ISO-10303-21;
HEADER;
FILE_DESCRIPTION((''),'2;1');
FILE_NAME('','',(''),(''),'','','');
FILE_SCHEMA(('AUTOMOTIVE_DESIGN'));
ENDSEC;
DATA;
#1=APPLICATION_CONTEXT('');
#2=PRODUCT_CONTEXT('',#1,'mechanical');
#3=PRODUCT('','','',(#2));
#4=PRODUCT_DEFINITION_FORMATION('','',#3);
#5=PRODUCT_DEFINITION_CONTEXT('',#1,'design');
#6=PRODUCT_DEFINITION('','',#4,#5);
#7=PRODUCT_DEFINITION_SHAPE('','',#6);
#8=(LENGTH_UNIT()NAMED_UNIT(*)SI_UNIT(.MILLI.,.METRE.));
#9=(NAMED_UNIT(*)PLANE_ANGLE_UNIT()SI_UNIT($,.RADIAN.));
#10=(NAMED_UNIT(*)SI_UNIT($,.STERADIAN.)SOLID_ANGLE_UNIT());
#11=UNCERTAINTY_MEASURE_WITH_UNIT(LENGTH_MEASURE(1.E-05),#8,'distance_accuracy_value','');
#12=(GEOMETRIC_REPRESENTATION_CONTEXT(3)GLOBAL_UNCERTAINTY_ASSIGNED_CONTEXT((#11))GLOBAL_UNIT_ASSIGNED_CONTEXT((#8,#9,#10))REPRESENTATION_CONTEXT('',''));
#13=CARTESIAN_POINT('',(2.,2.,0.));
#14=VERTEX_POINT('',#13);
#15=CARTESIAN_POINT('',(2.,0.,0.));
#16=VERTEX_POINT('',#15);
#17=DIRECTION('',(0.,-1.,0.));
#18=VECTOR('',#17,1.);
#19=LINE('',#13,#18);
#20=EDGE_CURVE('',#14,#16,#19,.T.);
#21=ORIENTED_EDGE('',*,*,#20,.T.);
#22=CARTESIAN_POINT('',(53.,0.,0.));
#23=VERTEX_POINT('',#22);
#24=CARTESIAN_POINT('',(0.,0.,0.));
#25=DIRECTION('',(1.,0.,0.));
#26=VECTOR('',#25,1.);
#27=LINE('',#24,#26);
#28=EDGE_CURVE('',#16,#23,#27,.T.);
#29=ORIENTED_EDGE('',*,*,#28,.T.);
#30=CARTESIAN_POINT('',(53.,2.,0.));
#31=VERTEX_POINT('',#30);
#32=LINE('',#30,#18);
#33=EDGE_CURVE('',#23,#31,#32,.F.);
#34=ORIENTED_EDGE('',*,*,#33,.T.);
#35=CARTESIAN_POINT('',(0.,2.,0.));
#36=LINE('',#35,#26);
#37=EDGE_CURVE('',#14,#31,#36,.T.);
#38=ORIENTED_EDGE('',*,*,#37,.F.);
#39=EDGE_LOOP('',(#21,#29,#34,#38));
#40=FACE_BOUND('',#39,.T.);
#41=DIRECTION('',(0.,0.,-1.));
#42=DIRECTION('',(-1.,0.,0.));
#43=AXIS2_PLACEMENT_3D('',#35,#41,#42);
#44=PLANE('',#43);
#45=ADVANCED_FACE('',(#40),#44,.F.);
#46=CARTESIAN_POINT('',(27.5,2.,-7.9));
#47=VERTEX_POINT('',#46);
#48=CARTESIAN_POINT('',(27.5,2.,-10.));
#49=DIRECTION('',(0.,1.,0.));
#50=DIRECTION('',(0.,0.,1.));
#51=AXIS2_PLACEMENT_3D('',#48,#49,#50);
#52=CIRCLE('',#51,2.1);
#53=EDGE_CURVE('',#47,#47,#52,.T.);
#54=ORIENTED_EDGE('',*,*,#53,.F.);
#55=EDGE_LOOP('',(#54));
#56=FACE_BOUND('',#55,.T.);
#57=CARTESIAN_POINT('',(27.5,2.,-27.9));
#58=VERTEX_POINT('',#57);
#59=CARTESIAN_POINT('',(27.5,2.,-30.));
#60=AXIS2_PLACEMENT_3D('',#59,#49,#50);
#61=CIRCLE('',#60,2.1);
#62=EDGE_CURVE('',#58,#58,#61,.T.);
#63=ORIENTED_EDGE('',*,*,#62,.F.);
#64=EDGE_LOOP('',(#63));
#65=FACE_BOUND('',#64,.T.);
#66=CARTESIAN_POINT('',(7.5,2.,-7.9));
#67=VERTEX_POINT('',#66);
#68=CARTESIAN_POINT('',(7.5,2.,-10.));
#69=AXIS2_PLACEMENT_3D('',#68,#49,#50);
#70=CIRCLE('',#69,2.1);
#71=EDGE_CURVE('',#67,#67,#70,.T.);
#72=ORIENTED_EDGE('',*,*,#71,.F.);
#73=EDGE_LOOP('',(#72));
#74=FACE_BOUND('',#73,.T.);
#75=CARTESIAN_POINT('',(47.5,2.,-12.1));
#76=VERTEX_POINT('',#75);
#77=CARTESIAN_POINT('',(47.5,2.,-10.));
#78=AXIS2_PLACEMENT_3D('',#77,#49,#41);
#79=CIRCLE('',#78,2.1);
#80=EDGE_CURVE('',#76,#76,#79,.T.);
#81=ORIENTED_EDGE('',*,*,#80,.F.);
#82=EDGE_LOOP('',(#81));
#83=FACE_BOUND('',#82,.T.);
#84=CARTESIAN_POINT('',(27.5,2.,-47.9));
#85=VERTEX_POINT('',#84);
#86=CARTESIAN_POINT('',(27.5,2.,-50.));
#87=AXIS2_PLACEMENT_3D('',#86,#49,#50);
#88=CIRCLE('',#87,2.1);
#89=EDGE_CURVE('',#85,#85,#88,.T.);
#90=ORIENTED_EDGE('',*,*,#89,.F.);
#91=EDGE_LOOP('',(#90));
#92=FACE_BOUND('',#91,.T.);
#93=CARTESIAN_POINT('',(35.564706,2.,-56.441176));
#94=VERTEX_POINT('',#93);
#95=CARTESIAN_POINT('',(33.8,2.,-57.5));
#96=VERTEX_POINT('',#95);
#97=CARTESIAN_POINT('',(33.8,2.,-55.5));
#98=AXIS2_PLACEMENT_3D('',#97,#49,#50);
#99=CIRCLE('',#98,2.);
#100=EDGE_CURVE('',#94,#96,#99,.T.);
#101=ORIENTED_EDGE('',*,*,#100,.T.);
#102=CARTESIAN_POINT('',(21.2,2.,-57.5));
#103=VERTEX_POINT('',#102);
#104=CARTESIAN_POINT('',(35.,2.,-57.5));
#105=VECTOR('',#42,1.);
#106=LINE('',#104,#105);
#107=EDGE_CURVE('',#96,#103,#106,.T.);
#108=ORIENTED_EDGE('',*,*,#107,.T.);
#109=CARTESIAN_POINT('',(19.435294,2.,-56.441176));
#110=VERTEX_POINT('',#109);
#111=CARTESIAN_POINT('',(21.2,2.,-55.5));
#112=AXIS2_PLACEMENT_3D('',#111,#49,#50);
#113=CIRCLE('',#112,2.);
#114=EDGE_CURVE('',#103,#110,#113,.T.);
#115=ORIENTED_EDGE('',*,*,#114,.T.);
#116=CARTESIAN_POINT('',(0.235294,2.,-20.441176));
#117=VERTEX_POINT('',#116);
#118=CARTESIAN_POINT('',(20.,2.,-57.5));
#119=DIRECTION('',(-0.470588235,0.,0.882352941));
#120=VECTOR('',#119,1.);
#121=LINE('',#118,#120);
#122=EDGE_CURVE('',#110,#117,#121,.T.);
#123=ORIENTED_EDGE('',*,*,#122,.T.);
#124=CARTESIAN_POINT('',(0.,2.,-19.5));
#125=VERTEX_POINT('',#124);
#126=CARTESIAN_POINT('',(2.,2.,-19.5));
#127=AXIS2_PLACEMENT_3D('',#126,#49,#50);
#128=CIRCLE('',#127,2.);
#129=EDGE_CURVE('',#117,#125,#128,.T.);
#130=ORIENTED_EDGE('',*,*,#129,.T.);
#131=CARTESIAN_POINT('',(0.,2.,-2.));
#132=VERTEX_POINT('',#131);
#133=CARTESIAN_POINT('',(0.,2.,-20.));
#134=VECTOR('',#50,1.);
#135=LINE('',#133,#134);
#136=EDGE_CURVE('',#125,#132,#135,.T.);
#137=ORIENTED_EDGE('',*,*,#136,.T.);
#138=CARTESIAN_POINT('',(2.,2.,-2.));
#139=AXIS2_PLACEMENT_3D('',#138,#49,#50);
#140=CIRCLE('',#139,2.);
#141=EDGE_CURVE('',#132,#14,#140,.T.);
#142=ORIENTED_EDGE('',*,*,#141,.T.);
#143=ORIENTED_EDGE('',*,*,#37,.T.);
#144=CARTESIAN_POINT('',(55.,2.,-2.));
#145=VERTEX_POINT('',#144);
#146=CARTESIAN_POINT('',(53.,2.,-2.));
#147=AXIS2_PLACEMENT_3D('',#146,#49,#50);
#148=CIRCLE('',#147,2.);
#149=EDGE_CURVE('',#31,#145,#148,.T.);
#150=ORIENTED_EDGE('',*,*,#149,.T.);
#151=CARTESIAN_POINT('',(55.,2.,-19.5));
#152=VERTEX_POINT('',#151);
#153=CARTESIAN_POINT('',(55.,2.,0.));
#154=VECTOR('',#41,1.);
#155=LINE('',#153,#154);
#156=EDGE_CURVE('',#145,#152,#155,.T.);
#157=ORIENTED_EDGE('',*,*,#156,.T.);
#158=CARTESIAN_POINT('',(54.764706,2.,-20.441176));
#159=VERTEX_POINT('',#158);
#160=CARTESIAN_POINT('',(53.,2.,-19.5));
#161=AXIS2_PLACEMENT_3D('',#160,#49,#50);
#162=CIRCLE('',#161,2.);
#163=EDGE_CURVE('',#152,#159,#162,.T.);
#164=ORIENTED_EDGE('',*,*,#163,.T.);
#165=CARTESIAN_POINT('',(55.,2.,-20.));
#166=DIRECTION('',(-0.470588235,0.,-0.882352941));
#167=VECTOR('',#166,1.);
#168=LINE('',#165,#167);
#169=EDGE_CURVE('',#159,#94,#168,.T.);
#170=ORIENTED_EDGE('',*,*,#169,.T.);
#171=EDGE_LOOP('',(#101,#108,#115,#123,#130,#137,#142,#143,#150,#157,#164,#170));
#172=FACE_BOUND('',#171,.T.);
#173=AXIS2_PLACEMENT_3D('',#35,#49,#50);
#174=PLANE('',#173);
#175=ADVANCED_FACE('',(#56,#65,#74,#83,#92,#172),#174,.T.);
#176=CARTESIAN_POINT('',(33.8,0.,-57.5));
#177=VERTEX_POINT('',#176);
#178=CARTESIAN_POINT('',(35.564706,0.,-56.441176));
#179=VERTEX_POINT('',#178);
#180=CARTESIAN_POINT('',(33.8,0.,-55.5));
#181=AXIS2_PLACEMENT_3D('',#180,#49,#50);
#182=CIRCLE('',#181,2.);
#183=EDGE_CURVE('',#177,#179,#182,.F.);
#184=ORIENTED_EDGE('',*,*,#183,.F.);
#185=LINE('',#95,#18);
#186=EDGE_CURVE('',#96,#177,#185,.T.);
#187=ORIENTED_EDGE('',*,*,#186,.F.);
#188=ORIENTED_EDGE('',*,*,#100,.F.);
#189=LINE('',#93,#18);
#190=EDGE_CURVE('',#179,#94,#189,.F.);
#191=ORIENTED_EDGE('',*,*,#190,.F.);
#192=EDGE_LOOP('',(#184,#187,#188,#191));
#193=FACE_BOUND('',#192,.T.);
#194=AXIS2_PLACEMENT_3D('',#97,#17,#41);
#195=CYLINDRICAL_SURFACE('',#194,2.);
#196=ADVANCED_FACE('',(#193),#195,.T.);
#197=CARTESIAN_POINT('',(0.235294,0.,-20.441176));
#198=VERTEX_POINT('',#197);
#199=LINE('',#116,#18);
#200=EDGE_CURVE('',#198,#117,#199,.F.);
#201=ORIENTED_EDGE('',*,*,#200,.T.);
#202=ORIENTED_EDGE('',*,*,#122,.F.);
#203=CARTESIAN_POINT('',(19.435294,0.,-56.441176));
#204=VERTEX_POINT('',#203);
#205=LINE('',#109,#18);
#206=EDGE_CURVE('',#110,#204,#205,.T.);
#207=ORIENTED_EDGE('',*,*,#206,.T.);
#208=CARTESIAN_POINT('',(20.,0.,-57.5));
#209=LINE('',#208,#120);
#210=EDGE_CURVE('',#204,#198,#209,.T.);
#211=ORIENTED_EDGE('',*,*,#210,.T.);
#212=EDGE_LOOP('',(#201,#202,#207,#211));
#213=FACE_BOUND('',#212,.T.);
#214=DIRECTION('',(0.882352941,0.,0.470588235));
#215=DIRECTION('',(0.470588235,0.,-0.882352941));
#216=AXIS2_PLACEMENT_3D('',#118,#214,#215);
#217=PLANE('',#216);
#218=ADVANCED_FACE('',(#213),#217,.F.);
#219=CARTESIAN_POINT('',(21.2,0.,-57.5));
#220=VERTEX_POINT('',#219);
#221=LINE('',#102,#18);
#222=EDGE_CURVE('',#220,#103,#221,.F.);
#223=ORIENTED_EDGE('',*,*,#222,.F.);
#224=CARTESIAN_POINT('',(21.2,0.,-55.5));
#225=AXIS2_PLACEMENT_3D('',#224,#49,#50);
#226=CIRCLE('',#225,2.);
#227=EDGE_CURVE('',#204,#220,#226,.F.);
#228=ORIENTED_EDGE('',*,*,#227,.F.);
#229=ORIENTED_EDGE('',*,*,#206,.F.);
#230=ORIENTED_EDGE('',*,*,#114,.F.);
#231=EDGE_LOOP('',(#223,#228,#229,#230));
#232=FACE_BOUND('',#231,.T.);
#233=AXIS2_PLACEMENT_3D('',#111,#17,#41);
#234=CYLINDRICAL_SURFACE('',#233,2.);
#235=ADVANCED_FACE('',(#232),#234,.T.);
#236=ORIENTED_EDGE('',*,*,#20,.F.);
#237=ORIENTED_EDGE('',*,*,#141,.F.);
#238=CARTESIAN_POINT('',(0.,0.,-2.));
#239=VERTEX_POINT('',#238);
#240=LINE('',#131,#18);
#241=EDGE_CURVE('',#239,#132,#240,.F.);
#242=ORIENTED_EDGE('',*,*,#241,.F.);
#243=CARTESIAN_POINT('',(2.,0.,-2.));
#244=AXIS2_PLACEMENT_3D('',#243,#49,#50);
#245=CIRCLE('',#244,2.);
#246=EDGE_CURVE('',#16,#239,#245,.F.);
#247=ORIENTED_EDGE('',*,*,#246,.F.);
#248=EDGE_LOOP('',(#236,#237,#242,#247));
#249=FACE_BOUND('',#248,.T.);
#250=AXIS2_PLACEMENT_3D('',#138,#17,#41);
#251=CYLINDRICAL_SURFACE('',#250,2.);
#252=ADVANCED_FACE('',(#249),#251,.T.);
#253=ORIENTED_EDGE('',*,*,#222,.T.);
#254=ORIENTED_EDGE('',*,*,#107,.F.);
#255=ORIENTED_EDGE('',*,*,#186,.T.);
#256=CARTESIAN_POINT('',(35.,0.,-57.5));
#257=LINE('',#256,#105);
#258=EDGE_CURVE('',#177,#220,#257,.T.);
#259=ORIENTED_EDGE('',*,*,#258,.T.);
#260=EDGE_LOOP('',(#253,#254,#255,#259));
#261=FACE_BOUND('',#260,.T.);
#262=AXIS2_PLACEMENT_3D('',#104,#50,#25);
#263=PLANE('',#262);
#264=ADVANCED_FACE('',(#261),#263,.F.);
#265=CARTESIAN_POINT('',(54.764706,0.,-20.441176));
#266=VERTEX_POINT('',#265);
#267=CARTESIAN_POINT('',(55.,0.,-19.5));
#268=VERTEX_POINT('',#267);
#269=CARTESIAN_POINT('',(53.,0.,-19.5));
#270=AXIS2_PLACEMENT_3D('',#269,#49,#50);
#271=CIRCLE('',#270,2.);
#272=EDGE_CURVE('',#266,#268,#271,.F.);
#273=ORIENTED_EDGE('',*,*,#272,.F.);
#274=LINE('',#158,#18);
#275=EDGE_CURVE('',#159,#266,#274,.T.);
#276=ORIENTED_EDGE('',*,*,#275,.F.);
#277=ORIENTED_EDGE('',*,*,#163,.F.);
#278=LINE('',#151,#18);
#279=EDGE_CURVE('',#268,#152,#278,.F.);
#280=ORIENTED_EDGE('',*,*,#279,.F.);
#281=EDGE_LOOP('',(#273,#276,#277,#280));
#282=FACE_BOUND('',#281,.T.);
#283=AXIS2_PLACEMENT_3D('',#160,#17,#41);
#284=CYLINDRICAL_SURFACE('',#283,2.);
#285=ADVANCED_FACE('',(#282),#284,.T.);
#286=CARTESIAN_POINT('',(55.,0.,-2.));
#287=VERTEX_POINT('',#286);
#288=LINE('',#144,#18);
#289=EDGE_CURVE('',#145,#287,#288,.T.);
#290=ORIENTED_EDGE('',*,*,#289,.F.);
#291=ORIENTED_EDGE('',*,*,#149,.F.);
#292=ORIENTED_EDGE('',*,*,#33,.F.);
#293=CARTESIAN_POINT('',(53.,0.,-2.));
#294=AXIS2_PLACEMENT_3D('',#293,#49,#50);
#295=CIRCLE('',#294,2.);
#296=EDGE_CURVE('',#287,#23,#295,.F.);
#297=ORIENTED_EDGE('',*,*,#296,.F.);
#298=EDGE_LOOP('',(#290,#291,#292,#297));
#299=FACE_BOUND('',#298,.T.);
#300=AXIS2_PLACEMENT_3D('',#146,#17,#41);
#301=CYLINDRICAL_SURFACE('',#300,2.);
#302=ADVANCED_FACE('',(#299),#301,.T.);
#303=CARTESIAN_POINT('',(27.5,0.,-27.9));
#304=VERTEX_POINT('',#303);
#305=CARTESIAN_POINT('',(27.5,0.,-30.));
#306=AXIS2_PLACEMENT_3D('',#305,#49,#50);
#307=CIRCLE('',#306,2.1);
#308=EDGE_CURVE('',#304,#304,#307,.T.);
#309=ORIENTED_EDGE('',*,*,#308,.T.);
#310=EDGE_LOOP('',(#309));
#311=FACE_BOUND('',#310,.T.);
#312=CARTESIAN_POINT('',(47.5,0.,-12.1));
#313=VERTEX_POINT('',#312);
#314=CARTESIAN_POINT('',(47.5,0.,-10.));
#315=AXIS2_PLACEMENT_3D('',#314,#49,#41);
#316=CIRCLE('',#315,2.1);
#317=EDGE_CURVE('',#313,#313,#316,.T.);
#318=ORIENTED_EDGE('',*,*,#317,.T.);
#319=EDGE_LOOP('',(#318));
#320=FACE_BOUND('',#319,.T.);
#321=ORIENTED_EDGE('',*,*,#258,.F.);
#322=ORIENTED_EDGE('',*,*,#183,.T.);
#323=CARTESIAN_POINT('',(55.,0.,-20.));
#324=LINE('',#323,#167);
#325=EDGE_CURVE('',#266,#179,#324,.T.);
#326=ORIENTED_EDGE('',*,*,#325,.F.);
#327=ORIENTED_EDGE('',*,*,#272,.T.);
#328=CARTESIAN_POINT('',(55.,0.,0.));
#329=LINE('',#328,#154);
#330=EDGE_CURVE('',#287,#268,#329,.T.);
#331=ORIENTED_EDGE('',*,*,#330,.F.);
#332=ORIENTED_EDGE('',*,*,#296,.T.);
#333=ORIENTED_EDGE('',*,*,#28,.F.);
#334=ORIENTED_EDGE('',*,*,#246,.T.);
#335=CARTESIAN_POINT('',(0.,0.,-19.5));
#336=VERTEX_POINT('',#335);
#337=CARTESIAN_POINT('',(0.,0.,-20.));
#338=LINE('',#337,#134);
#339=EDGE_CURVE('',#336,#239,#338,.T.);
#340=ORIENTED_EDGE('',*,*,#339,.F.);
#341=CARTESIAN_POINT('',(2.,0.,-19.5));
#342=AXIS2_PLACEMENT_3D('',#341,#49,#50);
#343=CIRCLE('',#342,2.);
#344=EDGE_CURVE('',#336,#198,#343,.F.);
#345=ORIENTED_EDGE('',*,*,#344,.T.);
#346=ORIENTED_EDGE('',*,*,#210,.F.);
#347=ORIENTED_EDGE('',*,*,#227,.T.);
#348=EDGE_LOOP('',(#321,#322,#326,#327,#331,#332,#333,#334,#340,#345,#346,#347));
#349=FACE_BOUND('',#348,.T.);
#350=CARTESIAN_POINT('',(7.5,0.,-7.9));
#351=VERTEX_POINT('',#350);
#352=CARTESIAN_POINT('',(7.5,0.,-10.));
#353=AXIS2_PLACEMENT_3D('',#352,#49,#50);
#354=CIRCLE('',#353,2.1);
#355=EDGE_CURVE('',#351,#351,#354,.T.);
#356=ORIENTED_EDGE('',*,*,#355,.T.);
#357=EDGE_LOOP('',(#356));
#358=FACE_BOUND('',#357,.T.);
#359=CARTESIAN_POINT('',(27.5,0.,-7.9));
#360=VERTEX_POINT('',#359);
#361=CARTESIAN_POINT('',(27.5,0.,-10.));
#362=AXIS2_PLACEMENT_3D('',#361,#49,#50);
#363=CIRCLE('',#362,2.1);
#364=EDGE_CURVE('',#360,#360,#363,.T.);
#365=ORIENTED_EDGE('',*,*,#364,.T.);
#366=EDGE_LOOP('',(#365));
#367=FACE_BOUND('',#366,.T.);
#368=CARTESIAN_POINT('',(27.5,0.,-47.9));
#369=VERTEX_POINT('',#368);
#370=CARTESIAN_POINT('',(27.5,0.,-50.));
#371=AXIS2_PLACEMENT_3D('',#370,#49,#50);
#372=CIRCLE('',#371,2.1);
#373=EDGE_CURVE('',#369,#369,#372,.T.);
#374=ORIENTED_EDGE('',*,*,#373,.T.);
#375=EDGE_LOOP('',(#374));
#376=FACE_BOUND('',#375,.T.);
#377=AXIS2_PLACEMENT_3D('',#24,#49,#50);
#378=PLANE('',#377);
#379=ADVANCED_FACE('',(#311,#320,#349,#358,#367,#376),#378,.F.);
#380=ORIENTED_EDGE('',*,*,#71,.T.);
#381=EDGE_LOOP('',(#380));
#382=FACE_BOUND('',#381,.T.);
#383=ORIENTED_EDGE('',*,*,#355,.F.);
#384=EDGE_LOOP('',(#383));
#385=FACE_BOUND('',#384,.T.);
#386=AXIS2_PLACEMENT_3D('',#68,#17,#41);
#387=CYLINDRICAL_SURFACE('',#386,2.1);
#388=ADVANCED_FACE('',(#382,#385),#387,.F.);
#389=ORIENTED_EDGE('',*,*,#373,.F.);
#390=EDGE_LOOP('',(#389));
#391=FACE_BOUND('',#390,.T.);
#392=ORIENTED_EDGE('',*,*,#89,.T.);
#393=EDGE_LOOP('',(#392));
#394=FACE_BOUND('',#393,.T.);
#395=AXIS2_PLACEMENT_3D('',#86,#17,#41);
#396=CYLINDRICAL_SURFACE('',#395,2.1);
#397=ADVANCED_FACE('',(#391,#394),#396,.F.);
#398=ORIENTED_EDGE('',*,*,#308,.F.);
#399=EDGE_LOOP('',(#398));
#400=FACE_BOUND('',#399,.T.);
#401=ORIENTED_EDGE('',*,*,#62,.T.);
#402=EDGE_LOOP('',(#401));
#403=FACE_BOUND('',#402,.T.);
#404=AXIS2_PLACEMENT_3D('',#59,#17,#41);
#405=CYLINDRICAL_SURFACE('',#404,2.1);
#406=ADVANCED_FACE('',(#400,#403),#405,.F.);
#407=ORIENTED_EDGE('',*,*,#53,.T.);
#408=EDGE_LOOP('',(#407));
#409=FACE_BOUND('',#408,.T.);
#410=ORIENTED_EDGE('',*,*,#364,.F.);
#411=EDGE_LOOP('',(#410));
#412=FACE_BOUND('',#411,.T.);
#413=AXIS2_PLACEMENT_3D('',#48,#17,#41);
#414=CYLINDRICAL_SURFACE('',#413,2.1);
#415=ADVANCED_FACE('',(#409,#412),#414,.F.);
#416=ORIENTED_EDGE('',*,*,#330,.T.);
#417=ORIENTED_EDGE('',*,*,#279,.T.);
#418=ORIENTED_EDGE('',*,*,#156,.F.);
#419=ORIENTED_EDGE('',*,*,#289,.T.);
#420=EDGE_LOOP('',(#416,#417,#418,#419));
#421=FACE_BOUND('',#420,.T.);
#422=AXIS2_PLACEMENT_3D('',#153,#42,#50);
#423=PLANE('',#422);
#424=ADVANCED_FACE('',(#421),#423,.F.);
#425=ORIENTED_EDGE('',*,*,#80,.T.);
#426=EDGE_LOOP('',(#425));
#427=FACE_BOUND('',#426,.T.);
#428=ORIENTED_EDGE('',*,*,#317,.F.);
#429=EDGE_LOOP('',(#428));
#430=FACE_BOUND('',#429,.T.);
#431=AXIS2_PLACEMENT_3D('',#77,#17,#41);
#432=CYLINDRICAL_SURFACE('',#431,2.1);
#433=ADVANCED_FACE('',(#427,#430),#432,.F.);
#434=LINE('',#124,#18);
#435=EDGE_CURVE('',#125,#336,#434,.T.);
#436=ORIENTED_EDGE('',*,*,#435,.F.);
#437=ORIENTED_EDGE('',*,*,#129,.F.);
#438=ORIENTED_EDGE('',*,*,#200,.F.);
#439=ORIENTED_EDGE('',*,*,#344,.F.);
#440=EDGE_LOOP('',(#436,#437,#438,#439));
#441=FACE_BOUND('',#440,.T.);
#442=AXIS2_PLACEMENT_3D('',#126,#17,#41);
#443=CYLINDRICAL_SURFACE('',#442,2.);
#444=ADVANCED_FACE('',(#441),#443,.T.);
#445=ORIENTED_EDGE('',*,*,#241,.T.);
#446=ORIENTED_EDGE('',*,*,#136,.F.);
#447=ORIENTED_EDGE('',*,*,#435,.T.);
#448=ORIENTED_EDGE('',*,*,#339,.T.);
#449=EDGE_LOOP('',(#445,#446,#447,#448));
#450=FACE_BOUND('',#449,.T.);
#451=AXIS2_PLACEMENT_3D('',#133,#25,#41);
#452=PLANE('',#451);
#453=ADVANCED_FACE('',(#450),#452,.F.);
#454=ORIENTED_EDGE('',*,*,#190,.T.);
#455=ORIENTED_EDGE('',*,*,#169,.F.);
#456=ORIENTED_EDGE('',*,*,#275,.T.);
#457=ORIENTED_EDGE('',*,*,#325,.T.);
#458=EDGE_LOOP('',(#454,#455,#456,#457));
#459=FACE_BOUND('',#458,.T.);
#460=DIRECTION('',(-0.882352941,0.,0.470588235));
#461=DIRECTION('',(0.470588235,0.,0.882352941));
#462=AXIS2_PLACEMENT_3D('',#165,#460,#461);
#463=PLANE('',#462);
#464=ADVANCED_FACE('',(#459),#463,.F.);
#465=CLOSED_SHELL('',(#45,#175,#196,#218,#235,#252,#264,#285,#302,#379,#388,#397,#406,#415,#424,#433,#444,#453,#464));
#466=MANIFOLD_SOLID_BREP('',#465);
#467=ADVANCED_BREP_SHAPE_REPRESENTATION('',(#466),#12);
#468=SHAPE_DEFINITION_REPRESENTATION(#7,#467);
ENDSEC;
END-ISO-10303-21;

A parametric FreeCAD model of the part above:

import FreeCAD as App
import Part
import Sketcher
Q = App.Units.Quantity


def edges_at(feature, points):
    """Names of the edges that pass closest to the given points."""
    edges = feature.Shape.Edges
    near = lambda p: min(range(len(edges)), key=lambda i: edges[i].distToShape(Part.Vertex(*p))[0])
    return sorted({f"Edge{near(p) + 1}" for p in points})


def add_polygon(sketch, points):
    """Adds a closed chain of lines whose ends are joined by coincident constraints."""
    first, n = sketch.GeometryCount, len(points)
    for a, b in zip(points, points[1:] + points[:1]):
        sketch.addGeometry(Part.LineSegment(App.Vector(*a, 0), App.Vector(*b, 0)), False)
    for i in range(n):
        sketch.addConstraint(Sketcher.Constraint("Coincident", first + i, 2, first + (i + 1) % n, 1))

doc = App.newDocument("Part")
params = doc.addObject("Spreadsheet::Sheet", "Params")
for row, (alias, value) in enumerate([
    ("sketch1_diameter", "4.2 mm"),
    ("sketch1_width", "55 mm"),
    ("sketch1_width2", "15 mm"),
    ("sketch1_height", "20 mm"),
    ("sketch1_length", "42.5 mm"),
    ("pad1_length", "2 mm"),
    ("fillet_radius", "2 mm"),
], start=1):
    params.set(f"A{row}", alias)
    params.set(f"B{row}", "=" + value)
    params.setAlias(f"B{row}", alias)

body = doc.addObject("PartDesign::Body", "Body")

# Sketch on XZ plane
sketch1 = body.newObject("Sketcher::SketchObject", "Sketch")
sketch1.AttachmentSupport = (doc.getObject("XZ_Plane"), [""])
sketch1.MapMode = "FlatFace"
add_polygon(sketch1, [(0, 0), (55, 0), (55, -20), (35, -57.5), (20, -57.5), (0, -20)])  # lines 0-5
sketch1.addGeometry(Part.Circle(App.Vector(7.5, -10, 0), App.Vector(0, 0, 1), 2.1), False)  # 6
sketch1.addGeometry(Part.Circle(App.Vector(27.5, -10, 0), App.Vector(0, 0, 1), 2.1), False)  # 7
sketch1.addGeometry(Part.Circle(App.Vector(47.5, -10, 0), App.Vector(0, 0, 1), 2.1), False)  # 8
sketch1.addGeometry(Part.Circle(App.Vector(27.5, -30, 0), App.Vector(0, 0, 1), 2.1), False)  # 9
sketch1.addGeometry(Part.Circle(App.Vector(27.5, -50, 0), App.Vector(0, 0, 1), 2.1), False)  # 10
sketch1.addConstraint([
    Sketcher.Constraint("Horizontal", 0),
    Sketcher.Constraint("Vertical", 1),
    Sketcher.Constraint("Horizontal", 3),
    Sketcher.Constraint("Vertical", 5),
    Sketcher.Constraint("Coincident", 5, 2, -1, 1),
    Sketcher.Constraint("Equal", 6, 7),
    Sketcher.Constraint("Equal", 7, 8),
    Sketcher.Constraint("Equal", 8, 9),
    Sketcher.Constraint("Equal", 9, 10),
    Sketcher.Constraint("Horizontal", 6, 3, 7, 3),
    Sketcher.Constraint("Horizontal", 7, 3, 8, 3),
    Sketcher.Constraint("Horizontal", 1, 2, 4, 2),
    Sketcher.Constraint("Vertical", 7, 3, 9, 3),
    Sketcher.Constraint("Vertical", 9, 3, 10, 3),
    Sketcher.Constraint("Equal", 2, 4),
    Sketcher.Constraint("Diameter", 6, Q("4.2 mm")),
    Sketcher.Constraint("DistanceX", 0, 1, 0, 2, Q("55 mm")),
    Sketcher.Constraint("DistanceX", 3, 2, 3, 1, Q("15 mm")),
    Sketcher.Constraint("DistanceY", 1, 2, 1, 1, Q("20 mm")),
    Sketcher.Constraint("DistanceY", 6, 3, -1, 1, Q("10 mm")),
    Sketcher.Constraint("DistanceY", 9, 3, -1, 1, Q("30 mm")),
    Sketcher.Constraint("DistanceY", 10, 3, -1, 1, Q("50 mm")),
    Sketcher.Constraint("DistanceX", 6, 3, 7, 3, Q("20 mm")),
    Sketcher.Constraint("DistanceX", 7, 3, 8, 3, Q("20 mm")),
    Sketcher.Constraint("Distance", 2, Q("42.5 mm")),
    Sketcher.Constraint("DistanceX", -1, 1, 6, 3, Q("7.5 mm")),
])
sketch1.setExpression("Constraints[21]", "Params.sketch1_diameter")
sketch1.setExpression("Constraints[22]", "Params.sketch1_width")
sketch1.setExpression("Constraints[23]", "Params.sketch1_width2")
sketch1.setExpression("Constraints[24]", "Params.sketch1_height")
sketch1.setExpression("Constraints[30]", "Params.sketch1_length")
pad1 = body.newObject("PartDesign::Pad", "Pad")
pad1.Profile = sketch1
pad1.setExpression("Length", "Params.pad1_length")
pad1.Reversed = True
doc.recompute()

fillet = body.newObject("PartDesign::Fillet", "Fillet")
fillet.Base = (pad1, edges_at(pad1, [
    (0, 1, -20),
    (20, 1, -57.5),
    (35, 1, -57.5),
    (55, 1, -20),
    (55, 1, 0),
    (0, 1, 0),
]))
fillet.setExpression("Radius", "Params.fillet_radius")

doc.recompute()
